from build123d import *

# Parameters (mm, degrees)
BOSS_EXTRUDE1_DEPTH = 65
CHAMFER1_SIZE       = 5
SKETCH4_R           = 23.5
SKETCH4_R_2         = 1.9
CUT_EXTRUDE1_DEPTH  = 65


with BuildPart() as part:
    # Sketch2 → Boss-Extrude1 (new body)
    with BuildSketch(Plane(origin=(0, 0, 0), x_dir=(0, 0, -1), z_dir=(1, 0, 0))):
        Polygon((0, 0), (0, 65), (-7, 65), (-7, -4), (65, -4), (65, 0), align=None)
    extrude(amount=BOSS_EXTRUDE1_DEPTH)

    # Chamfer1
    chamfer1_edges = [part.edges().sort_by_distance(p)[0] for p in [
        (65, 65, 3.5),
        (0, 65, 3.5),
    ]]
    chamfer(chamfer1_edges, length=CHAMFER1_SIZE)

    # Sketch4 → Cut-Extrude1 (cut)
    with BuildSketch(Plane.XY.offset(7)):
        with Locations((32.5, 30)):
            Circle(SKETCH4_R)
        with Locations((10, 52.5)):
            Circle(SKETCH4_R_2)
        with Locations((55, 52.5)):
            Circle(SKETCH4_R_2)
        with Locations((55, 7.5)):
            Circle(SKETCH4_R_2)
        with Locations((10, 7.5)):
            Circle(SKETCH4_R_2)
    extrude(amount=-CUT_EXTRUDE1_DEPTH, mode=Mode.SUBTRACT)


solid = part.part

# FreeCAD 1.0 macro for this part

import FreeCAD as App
import Part
import Sketcher

V = App.Vector
Q = App.Units.Quantity


def edges_at(feature, points):
    """Names of the edges that pass closest to the given points."""
    edges = feature.Shape.Edges
    near = lambda p: min(range(len(edges)), key=lambda i: edges[i].distToShape(Part.Vertex(*p))[0])
    return sorted({f"Edge{near(p) + 1}" for p in points})


def add_polygon(sketch, points):
    """Adds a closed chain of lines whose ends are joined by coincident constraints."""
    first, n = sketch.GeometryCount, len(points)
    for a, b in zip(points, points[1:] + points[:1]):
        sketch.addGeometry(Part.LineSegment(App.Vector(*a, 0), App.Vector(*b, 0)), False)
    for i in range(n):
        sketch.addConstraint(Sketcher.Constraint("Coincident", first + i, 2, first + (i + 1) % n, 1))

doc = App.newDocument("Part")
body = doc.addObject("PartDesign::Body", "Body")

# Sketch on YZ plane
sketch1 = body.newObject("Sketcher::SketchObject", "Sketch")
sketch1.AttachmentSupport = (doc.getObject("YZ_Plane"), [""])
sketch1.MapMode = "FlatFace"
add_polygon(sketch1, [(0, 0), (65, 0), (65, 7), (-4, 7), (-4, -65), (0, -65)])  # lines 0-5
sketch1.addConstraint([
    Sketcher.Constraint("Horizontal", 0),
    Sketcher.Constraint("Vertical", 1),
    Sketcher.Constraint("Horizontal", 2),
    Sketcher.Constraint("Vertical", 3),
    Sketcher.Constraint("Horizontal", 4),
    Sketcher.Constraint("Vertical", 5),
    Sketcher.Constraint("Coincident", 5, 2, -1, 1),
    Sketcher.Constraint("Equal", 0, 5),
    Sketcher.Constraint("DistanceX", 0, 1, 0, 2, Q("65 mm")),
    Sketcher.Constraint("DistanceX", 2, 2, 2, 1, Q("69 mm")),
    Sketcher.Constraint("DistanceY", 1, 1, 1, 2, Q("7 mm")),
])
pad1 = body.newObject("PartDesign::Pad", "Pad")
pad1.Profile = sketch1
pad1.Length = 65
doc.recompute()

chamfer = body.newObject("PartDesign::Chamfer", "Chamfer")
chamfer.Base = (pad1, edges_at(pad1, [(65, 65, 3.5), (0, 65, 3.5)]))
chamfer.Size = 5

# Sketch on XY plane
sketch2 = body.newObject("Sketcher::SketchObject", "Sketch001")
sketch2.AttachmentSupport = (doc.getObject("XY_Plane"), [""])
sketch2.MapMode = "FlatFace"
sketch2.AttachmentOffset = App.Placement(V(0, 0, 7), App.Rotation())
sketch2.addGeometry([
    Part.Circle(V(32.5, 30, 0), V(0, 0, 1), 23.5),  # 0
    Part.Circle(V(10, 52.5, 0), V(0, 0, 1), 1.9),  # 1
    Part.Circle(V(55, 52.5, 0), V(0, 0, 1), 1.9),  # 2
    Part.Circle(V(55, 7.5, 0), V(0, 0, 1), 1.9),  # 3
    Part.Circle(V(10, 7.5, 0), V(0, 0, 1), 1.9),  # 4
], False)
sketch2.addConstraint([
    Sketcher.Constraint("Equal", 1, 2),
    Sketcher.Constraint("Equal", 2, 3),
    Sketcher.Constraint("Equal", 3, 4),
    Sketcher.Constraint("Horizontal", 1, 3, 2, 3),
    Sketcher.Constraint("Horizontal", 3, 3, 4, 3),
    Sketcher.Constraint("Vertical", 2, 3, 3, 3),
    Sketcher.Constraint("Vertical", 1, 3, 4, 3),
    Sketcher.Constraint("Diameter", 0, Q("47 mm")),
    Sketcher.Constraint("Diameter", 1, Q("3.8 mm")),
    Sketcher.Constraint("DistanceY", -1, 1, 0, 3, Q("30 mm")),
    Sketcher.Constraint("DistanceX", -1, 1, 1, 3, Q("10 mm")),
    Sketcher.Constraint("DistanceX", -1, 1, 2, 3, Q("55 mm")),
    Sketcher.Constraint("DistanceY", 3, 3, 2, 3, Q("45 mm")),
    Sketcher.Constraint("DistanceX", -1, 1, 0, 3, Q("32.5 mm")),
    Sketcher.Constraint("DistanceY", -1, 1, 1, 3, Q("52.5 mm")),
])
pocket1 = body.newObject("PartDesign::Pocket", "Pocket")
pocket1.Profile = sketch2
pocket1.Length = 65

doc.recompute()
